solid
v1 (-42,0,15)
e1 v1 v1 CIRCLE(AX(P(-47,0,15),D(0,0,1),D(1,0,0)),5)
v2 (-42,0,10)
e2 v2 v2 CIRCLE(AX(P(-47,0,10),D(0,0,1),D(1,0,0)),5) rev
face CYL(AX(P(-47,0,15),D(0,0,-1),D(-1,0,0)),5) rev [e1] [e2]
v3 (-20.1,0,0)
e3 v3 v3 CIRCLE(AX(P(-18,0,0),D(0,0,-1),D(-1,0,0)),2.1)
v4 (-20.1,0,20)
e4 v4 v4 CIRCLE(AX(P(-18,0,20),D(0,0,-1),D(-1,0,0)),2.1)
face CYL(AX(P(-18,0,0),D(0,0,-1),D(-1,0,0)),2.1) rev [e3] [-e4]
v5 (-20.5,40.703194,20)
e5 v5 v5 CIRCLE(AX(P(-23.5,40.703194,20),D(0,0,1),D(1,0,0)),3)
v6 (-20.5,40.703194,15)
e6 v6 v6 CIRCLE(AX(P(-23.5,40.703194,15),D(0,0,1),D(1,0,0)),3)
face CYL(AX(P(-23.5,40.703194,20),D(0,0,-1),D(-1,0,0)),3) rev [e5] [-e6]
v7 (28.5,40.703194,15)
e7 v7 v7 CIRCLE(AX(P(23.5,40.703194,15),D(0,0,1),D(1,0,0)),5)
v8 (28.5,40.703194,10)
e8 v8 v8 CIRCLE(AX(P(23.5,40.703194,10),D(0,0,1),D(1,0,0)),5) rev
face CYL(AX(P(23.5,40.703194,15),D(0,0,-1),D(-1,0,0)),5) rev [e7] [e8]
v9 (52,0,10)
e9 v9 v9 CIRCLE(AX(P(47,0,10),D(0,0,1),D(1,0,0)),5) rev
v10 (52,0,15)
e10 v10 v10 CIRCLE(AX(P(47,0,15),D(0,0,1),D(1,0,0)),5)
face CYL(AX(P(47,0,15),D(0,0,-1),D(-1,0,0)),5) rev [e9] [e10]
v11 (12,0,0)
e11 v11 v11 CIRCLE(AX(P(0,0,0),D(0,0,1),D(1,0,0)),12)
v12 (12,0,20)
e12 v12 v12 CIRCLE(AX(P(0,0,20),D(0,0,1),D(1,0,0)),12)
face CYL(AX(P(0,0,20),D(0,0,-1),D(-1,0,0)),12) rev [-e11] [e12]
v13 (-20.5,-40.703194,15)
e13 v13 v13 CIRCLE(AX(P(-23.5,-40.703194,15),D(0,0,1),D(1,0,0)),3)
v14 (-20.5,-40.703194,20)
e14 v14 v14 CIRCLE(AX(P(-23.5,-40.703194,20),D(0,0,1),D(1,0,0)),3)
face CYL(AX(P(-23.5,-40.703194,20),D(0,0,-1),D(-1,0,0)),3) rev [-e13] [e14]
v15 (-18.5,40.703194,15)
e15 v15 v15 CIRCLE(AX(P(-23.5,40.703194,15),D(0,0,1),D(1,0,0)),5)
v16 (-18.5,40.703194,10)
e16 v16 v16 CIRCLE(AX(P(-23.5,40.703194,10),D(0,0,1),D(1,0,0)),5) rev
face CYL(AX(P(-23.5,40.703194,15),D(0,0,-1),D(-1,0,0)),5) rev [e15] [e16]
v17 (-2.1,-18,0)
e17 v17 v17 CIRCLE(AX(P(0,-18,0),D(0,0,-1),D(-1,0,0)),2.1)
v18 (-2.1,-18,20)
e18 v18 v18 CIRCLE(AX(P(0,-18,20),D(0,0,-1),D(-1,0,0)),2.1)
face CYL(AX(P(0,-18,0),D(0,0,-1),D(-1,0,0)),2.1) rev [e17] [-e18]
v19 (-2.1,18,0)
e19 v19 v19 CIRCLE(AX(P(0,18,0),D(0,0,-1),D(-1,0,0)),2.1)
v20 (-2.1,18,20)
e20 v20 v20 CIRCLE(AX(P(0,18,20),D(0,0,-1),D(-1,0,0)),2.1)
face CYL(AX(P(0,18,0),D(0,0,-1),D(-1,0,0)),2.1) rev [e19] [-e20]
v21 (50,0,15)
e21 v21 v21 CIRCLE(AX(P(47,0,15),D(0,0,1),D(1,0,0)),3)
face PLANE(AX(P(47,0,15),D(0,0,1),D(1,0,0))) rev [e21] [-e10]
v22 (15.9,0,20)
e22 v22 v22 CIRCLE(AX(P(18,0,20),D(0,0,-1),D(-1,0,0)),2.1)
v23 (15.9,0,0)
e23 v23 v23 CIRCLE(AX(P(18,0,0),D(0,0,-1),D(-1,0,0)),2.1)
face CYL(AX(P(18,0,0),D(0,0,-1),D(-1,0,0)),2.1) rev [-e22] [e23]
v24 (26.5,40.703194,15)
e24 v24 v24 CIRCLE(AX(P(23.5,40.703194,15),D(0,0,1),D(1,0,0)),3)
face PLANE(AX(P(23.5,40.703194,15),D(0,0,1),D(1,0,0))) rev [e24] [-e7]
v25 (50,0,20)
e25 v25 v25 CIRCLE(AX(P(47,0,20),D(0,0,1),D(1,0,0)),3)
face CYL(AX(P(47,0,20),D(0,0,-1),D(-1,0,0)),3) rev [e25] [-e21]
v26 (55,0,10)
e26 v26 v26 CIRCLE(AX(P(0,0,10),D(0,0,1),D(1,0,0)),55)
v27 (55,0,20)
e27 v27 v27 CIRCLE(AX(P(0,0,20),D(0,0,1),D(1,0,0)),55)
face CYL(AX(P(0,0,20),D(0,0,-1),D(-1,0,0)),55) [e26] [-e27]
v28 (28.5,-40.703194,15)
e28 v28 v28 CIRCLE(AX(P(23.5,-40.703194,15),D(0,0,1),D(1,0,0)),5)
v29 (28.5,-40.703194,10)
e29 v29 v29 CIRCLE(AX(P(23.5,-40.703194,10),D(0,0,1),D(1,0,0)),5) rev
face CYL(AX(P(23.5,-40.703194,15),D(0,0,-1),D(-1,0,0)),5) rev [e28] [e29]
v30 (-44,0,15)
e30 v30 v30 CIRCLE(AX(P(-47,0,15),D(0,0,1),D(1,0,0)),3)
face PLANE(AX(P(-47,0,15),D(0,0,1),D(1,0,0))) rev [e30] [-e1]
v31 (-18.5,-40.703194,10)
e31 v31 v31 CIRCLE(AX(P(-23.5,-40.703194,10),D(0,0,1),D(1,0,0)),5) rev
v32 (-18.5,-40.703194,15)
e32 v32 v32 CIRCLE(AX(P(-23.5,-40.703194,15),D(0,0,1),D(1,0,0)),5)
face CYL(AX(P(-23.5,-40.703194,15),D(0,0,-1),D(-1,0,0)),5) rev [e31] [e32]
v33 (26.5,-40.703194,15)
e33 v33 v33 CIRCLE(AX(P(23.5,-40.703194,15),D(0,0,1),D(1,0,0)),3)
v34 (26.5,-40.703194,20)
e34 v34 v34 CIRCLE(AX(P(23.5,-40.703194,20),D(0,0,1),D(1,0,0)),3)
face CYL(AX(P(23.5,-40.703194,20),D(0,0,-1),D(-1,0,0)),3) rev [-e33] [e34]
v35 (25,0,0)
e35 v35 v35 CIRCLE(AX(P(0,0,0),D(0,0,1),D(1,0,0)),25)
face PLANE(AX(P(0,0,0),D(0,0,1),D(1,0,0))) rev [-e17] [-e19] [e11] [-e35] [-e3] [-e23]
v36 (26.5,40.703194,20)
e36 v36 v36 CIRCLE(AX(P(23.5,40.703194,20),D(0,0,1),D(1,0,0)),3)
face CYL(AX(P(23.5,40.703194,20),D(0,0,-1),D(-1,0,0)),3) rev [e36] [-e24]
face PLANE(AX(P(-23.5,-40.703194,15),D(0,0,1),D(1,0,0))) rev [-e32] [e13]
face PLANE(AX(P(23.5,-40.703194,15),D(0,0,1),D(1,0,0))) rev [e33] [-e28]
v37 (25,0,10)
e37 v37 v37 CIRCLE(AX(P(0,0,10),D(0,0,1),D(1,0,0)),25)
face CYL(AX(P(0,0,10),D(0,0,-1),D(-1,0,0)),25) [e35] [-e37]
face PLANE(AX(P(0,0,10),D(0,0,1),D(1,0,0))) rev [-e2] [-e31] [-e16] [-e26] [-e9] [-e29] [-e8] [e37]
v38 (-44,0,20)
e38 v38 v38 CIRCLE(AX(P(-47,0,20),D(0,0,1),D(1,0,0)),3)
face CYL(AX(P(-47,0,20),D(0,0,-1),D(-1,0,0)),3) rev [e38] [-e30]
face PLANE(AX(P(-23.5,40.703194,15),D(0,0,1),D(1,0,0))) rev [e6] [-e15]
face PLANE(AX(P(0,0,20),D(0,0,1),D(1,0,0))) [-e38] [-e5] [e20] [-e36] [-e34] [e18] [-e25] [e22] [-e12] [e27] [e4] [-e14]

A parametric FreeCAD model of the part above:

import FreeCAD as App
import Part
import Sketcher

V = App.Vector
Q = App.Units.Quantity


def add_polygon(sketch, points):
    """Adds a closed chain of lines whose ends are joined by coincident constraints."""
    first, n = sketch.GeometryCount, len(points)
    for a, b in zip(points, points[1:] + points[:1]):
        sketch.addGeometry(Part.LineSegment(App.Vector(*a, 0), App.Vector(*b, 0)), False)
    for i in range(n):
        sketch.addConstraint(Sketcher.Constraint("Coincident", first + i, 2, first + (i + 1) % n, 1))

doc = App.newDocument("Part")
body = doc.addObject("PartDesign::Body", "Body")

# Sketch on XY plane
sketch1 = body.newObject("Sketcher::SketchObject", "Sketch")
sketch1.AttachmentSupport = (doc.getObject("XY_Plane"), [""])
sketch1.MapMode = "FlatFace"
sketch1.addGeometry(Part.Circle(V(0, 0, 0), V(0, 0, 1), 55), False)
sketch1.addGeometry(Part.Circle(V(-23.5, -40.7, 0), V(0, 0, 1), 3), False)
sketch1.addGeometry(Part.Circle(V(23.5, -40.7, 0), V(0, 0, 1), 3), False)
sketch1.addGeometry(Part.Circle(V(-47, 0, 0), V(0, 0, 1), 3), False)
sketch1.addGeometry(Part.Circle(V(-23.5, 40.7, 0), V(0, 0, 1), 3), False)
sketch1.addGeometry(Part.Circle(V(0, 0, 0), V(0, 0, 1), 12), False)
sketch1.addGeometry(Part.Circle(V(47, 0, 0), V(0, 0, 1), 3), False)
sketch1.addGeometry(Part.Circle(V(23.5, 40.7, 0), V(0, 0, 1), 3), False)
sketch1.addConstraint(Sketcher.Constraint("Coincident", 0, 3, -1, 1))
sketch1.addConstraint(Sketcher.Constraint("Coincident", 5, 3, -1, 1))
sketch1.addConstraint(Sketcher.Constraint("Equal", 1, 2))
sketch1.addConstraint(Sketcher.Constraint("Equal", 2, 3))
sketch1.addConstraint(Sketcher.Constraint("Equal", 3, 4))
sketch1.addConstraint(Sketcher.Constraint("Equal", 4, 6))
sketch1.addConstraint(Sketcher.Constraint("Equal", 6, 7))
sketch1.addConstraint(Sketcher.Constraint("Symmetric", 2, 3, 4, 3, -1, 1))
sketch1.addConstraint(Sketcher.Constraint("Symmetric", 3, 3, 6, 3, -1, 1))
sketch1.addConstraint(Sketcher.Constraint("Symmetric", 1, 3, 7, 3, -1, 1))
sketch1.addConstraint(Sketcher.Constraint("Symmetric", 1, 3, 2, 3, -2))
sketch1.addConstraint(Sketcher.Constraint("PointOnObject", 3, 3, -1))
sketch1.addConstraint(Sketcher.Constraint("Diameter", 0, Q("110 mm")))
sketch1.addConstraint(Sketcher.Constraint("Diameter", 1, Q("6 mm")))
sketch1.addConstraint(Sketcher.Constraint("Diameter", 5, Q("24 mm")))
sketch1.addConstraint(Sketcher.Constraint("DistanceX", 3, 3, -1, 1, Q("47 mm")))
sketch1.addConstraint(Sketcher.Constraint("DistanceX", 1, 3, 2, 3, Q("47 mm")))
sketch1.addConstraint(Sketcher.Constraint("DistanceY", 1, 3, -1, 1, Q("40.703194 mm")))
pad1 = body.newObject("PartDesign::Pad", "Pad")
pad1.Profile = sketch1
pad1.Length = 20

# Sketch on XY plane
sketch2 = body.newObject("Sketcher::SketchObject", "Sketch001")
sketch2.AttachmentSupport = (doc.getObject("XY_Plane"), [""])
sketch2.MapMode = "FlatFace"
add_polygon(sketch2, [(-72, 72), (-72, -72), (72, -72), (72, 72)])  # lines 0-3
sketch2.addGeometry(Part.Circle(V(0, 0, 0), V(0, 0, 1), 25), False)  # 4
sketch2.addConstraint(Sketcher.Constraint("Vertical", 0))
sketch2.addConstraint(Sketcher.Constraint("Horizontal", 1))
sketch2.addConstraint(Sketcher.Constraint("Vertical", 2))
sketch2.addConstraint(Sketcher.Constraint("Horizontal", 3))
sketch2.addConstraint(Sketcher.Constraint("Coincident", 4, 3, -1, 1))
sketch2.addConstraint(Sketcher.Constraint("Symmetric", 0, 2, 2, 2, -1, 1))
sketch2.addConstraint(Sketcher.Constraint("Equal", 3, 0))
sketch2.addConstraint(Sketcher.Constraint("Diameter", 4, Q("50 mm")))
sketch2.addConstraint(Sketcher.Constraint("DistanceX", 1, 1, 1, 2, Q("143.368 mm")))
pocket1 = body.newObject("PartDesign::Pocket", "Pocket")
pocket1.Profile = sketch2
pocket1.Length = 10
pocket1.Reversed = True

# Sketch on XY plane
sketch3 = body.newObject("Sketcher::SketchObject", "Sketch002")
sketch3.AttachmentSupport = (doc.getObject("XY_Plane"), [""])
sketch3.MapMode = "FlatFace"
sketch3.addGeometry(Part.Circle(V(-47, 0, 0), V(0, 0, 1), 5), False)
sketch3.addGeometry(Part.Circle(V(-24, 41, 0), V(0, 0, 1), 5), False)
sketch3.addGeometry(Part.Circle(V(24, 41, 0), V(0, 0, 1), 5), False)
sketch3.addGeometry(Part.Circle(V(47, 0, 0), V(0, 0, 1), 5), False)
sketch3.addGeometry(Part.Circle(V(24, -41, 0), V(0, 0, 1), 5), False)
sketch3.addGeometry(Part.Circle(V(-24, -41, 0), V(0, 0, 1), 5), False)
sketch3.addConstraint(Sketcher.Constraint("Equal", 0, 1))
sketch3.addConstraint(Sketcher.Constraint("Equal", 1, 2))
sketch3.addConstraint(Sketcher.Constraint("Equal", 2, 3))
sketch3.addConstraint(Sketcher.Constraint("Equal", 3, 4))
sketch3.addConstraint(Sketcher.Constraint("Equal", 4, 5))
sketch3.addConstraint(Sketcher.Constraint("Symmetric", 0, 3, 3, 3, -1, 1))
sketch3.addConstraint(Sketcher.Constraint("Symmetric", 1, 3, 4, 3, -1, 1))
sketch3.addConstraint(Sketcher.Constraint("Symmetric", 2, 3, 5, 3, -1, 1))
sketch3.addConstraint(Sketcher.Constraint("Symmetric", 1, 3, 2, 3, -2))
sketch3.addConstraint(Sketcher.Constraint("PointOnObject", 0, 3, -1))
sketch3.addConstraint(Sketcher.Constraint("Diameter", 0, Q("10 mm")))
sketch3.addConstraint(Sketcher.Constraint("DistanceX", 0, 3, -1, 1, Q("47 mm")))
sketch3.addConstraint(Sketcher.Constraint("DistanceX", 1, 3, 2, 3, Q("47 mm")))
sketch3.addConstraint(Sketcher.Constraint("DistanceY", -1, 1, 1, 3, Q("40.703194 mm")))
pocket2 = body.newObject("PartDesign::Pocket", "Pocket001")
pocket2.Profile = sketch3
pocket2.Length = 15
pocket2.Reversed = True

# Sketch on XY plane
sketch4 = body.newObject("Sketcher::SketchObject", "Sketch003")
sketch4.AttachmentSupport = (doc.getObject("XY_Plane"), [""])
sketch4.MapMode = "FlatFace"
sketch4.addGeometry(Part.Circle(V(0, 18, 0), V(0, 0, 1), 2.1), False)
sketch4.addGeometry(Part.Circle(V(-18, 0, 0), V(0, 0, 1), 2.1), False)
sketch4.addGeometry(Part.Circle(V(0, -18, 0), V(0, 0, 1), 2.1), False)
sketch4.addGeometry(Part.Circle(V(18, 0, 0), V(0, 0, 1), 2.1), False)
sketch4.addConstraint(Sketcher.Constraint("Equal", 0, 1))
sketch4.addConstraint(Sketcher.Constraint("Equal", 1, 2))
sketch4.addConstraint(Sketcher.Constraint("Equal", 2, 3))
sketch4.addConstraint(Sketcher.Constraint("Symmetric", 0, 3, 2, 3, -1, 1))
sketch4.addConstraint(Sketcher.Constraint("Symmetric", 1, 3, 3, 3, -1, 1))
sketch4.addConstraint(Sketcher.Constraint("PointOnObject", 0, 3, -2))
sketch4.addConstraint(Sketcher.Constraint("PointOnObject", 1, 3, -1))
sketch4.addConstraint(Sketcher.Constraint("Diameter", 0, Q("4.2 mm")))
sketch4.addConstraint(Sketcher.Constraint("DistanceY", -1, 1, 0, 3, Q("18 mm")))
sketch4.addConstraint(Sketcher.Constraint("DistanceX", 1, 3, -1, 1, Q("18 mm")))
doc.recompute()
hole = body.newObject("PartDesign::Hole", "Hole")
hole.Profile = sketch4
hole.ThreadType = "None"
hole.Diameter = 4.2
hole.DepthType = "ThroughAll"
hole.Reversed = True

doc.recompute()
